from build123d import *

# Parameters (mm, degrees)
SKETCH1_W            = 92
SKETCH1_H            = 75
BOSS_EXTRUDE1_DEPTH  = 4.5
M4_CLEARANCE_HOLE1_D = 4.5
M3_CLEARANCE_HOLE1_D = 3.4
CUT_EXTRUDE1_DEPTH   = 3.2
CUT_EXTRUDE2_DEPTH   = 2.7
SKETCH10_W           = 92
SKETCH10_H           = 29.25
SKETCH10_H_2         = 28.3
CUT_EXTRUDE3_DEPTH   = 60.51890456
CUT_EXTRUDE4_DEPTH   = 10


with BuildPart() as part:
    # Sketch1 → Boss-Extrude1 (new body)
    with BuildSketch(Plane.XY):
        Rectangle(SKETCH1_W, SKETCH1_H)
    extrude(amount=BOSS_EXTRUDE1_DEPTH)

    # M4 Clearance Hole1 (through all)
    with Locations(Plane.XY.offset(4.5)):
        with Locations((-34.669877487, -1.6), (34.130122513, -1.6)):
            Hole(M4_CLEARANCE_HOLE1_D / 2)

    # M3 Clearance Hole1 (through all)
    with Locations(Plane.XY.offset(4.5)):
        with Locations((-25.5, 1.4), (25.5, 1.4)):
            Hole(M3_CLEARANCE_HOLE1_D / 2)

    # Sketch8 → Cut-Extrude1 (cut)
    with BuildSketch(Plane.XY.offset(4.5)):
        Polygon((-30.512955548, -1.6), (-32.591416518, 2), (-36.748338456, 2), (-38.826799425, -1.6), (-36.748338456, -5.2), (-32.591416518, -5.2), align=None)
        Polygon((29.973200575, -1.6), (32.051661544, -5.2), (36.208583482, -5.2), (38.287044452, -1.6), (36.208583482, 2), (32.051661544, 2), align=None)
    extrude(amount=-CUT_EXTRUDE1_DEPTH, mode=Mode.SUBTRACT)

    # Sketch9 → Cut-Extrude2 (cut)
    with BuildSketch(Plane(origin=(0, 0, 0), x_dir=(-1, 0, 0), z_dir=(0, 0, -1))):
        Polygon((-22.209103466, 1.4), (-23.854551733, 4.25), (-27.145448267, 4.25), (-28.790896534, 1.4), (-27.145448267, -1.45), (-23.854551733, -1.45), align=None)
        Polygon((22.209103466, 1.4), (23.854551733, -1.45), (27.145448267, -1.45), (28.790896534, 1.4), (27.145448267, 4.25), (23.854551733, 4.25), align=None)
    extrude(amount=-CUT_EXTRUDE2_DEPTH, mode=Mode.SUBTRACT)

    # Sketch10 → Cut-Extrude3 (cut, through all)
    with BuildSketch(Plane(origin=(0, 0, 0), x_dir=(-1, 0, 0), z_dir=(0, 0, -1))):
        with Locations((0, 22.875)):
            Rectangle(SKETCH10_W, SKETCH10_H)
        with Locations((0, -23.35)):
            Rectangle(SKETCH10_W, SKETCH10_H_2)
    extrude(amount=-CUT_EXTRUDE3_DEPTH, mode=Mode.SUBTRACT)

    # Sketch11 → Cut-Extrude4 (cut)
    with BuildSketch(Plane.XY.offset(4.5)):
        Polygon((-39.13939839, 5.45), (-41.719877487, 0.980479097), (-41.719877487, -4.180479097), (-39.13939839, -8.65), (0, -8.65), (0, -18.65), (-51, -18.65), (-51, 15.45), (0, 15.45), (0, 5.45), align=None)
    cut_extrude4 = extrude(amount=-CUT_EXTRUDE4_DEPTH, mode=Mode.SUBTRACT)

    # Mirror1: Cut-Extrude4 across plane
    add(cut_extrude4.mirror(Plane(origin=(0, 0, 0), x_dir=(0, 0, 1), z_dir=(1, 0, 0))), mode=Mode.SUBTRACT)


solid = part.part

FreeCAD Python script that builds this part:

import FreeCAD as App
import Part
import Sketcher

V = App.Vector
Q = App.Units.Quantity


def add_polygon(sketch, points):
    """Adds a closed chain of lines whose ends are joined by coincident constraints."""
    first, n = sketch.GeometryCount, len(points)
    for a, b in zip(points, points[1:] + points[:1]):
        sketch.addGeometry(Part.LineSegment(App.Vector(*a, 0), App.Vector(*b, 0)), False)
    for i in range(n):
        sketch.addConstraint(Sketcher.Constraint("Coincident", first + i, 2, first + (i + 1) % n, 1))

doc = App.newDocument("Part")
body = doc.addObject("PartDesign::Body", "Body")

# Sketch on XY plane
sketch1 = doc.addObject("Sketcher::SketchObject", "Sketch")
body.addObject(sketch1)
sketch1.AttachmentSupport = (doc.XY_Plane, [""])
sketch1.MapMode = "FlatFace"
add_polygon(sketch1, [(-46, 38), (-46, -38), (46, -38), (46, 38)])  # lines 0-3
sketch1.addConstraint([
    Sketcher.Constraint("Vertical", 0),
    Sketcher.Constraint("Horizontal", 1),
    Sketcher.Constraint("Vertical", 2),
    Sketcher.Constraint("Horizontal", 3),
    Sketcher.Constraint("Symmetric", 0, 2, 2, 2, -1, 1),
    Sketcher.Constraint("DistanceX", 1, 1, 1, 2, 92.0),
    Sketcher.Constraint("DistanceY", 0, 2, 0, 1, 75.0),
])
pad1 = doc.addObject("PartDesign::Pad", "Pad")
body.addObject(pad1)
pad1.Profile = sketch1
pad1.Length = 4.5

# Sketch on XY plane
sketch2 = doc.addObject("Sketcher::SketchObject", "Sketch001")
body.addObject(sketch2)
sketch2.AttachmentSupport = (doc.XY_Plane, [""])
sketch2.MapMode = "FlatFace"
sketch2.AttachmentOffset = App.Placement(V(0, 0, 4.5), App.Rotation())
sketch2.addGeometry([
    Part.Circle(V(-34.7, -1.6, 0), V(0, 0, 1), 2.2),
    Part.Circle(V(34.1, -1.6, 0), V(0, 0, 1), 2.2),
], False)
sketch2.addConstraint([
    Sketcher.Constraint("Equal", 0, 1),
    Sketcher.Constraint("Horizontal", 0, 3, 1, 3),
    Sketcher.Constraint("Diameter", 0, 4.5),
    Sketcher.Constraint("DistanceY", 0, 3, -1, 1, 1.6),
    Sketcher.Constraint("DistanceX", 0, 3, 1, 3, 68.8),
    Sketcher.Constraint("DistanceX", 0, 3, -1, 1, 34.669877),
])
doc.recompute()
hole = doc.addObject("PartDesign::Hole", "Hole")
body.addObject(hole)
hole.Profile = sketch2
hole.ThreadType = "None"
hole.Diameter = 4.5
hole.DepthType = "ThroughAll"

# Sketch on XY plane
sketch3 = doc.addObject("Sketcher::SketchObject", "Sketch002")
body.addObject(sketch3)
sketch3.AttachmentSupport = (doc.XY_Plane, [""])
sketch3.MapMode = "FlatFace"
sketch3.AttachmentOffset = App.Placement(V(0, 0, 4.5), App.Rotation())
sketch3.addGeometry([
    Part.Circle(V(-25.5, 1.4, 0), V(0, 0, 1), 1.7),
    Part.Circle(V(25.5, 1.4, 0), V(0, 0, 1), 1.7),
], False)
sketch3.addConstraint([
    Sketcher.Constraint("Equal", 0, 1),
    Sketcher.Constraint("Symmetric", 0, 3, 1, 3, -2),
    Sketcher.Constraint("Diameter", 0, 3.4),
    Sketcher.Constraint("DistanceX", 0, 3, 1, 3, 51.0),
    Sketcher.Constraint("DistanceY", -1, 1, 0, 3, 1.4),
])
doc.recompute()
hole2 = doc.addObject("PartDesign::Hole", "Hole001")
body.addObject(hole2)
hole2.Profile = sketch3
hole2.ThreadType = "None"
hole2.Diameter = 3.4
hole2.DepthType = "ThroughAll"

# Sketch on XY plane
sketch4 = doc.addObject("Sketcher::SketchObject", "Sketch003")
body.addObject(sketch4)
sketch4.AttachmentSupport = (doc.XY_Plane, [""])
sketch4.MapMode = "FlatFace"
sketch4.AttachmentOffset = App.Placement(V(0, 0, 4.5), App.Rotation())
add_polygon(sketch4, [(-30.5, -1.6), (-32.6, 2), (-36.7, 2), (-38.8, -1.6), (-36.7, -5.2), (-32.6, -5.2)])  # lines 0-5
add_polygon(sketch4, [(30, -1.6), (32.1, -5.2), (36.2, -5.2), (38.3, -1.6), (36.2, 2), (32.1, 2)])  # lines 6-11
sketch4.addConstraint([
    Sketcher.Constraint("Horizontal", 1),
    Sketcher.Constraint("Horizontal", 4),
    Sketcher.Constraint("Horizontal", 7),
    Sketcher.Constraint("Horizontal", 10),
    Sketcher.Constraint("Parallel", 0, 3),
    Sketcher.Constraint("Parallel", 2, 5),
    Sketcher.Constraint("Parallel", 3, 6),
    Sketcher.Constraint("Parallel", 5, 8),
    Sketcher.Constraint("Parallel", 6, 9),
    Sketcher.Constraint("Parallel", 8, 11),
    Sketcher.Constraint("Horizontal", 2, 2, 5, 2),
    Sketcher.Constraint("Horizontal", 4, 2, 6, 2),
    Sketcher.Constraint("Horizontal", 5, 2, 8, 2),
    Sketcher.Constraint("Horizontal", 1, 2, 9, 2),
    Sketcher.Constraint("Horizontal", 8, 2, 11, 2),
    Sketcher.Constraint("Vertical", 1, 2, 3, 2),
    Sketcher.Constraint("Vertical", 0, 2, 4, 2),
    Sketcher.Constraint("Equal", 4, 7),
    Sketcher.Constraint("Angle", 0, Q("120 deg")),
    Sketcher.Constraint("DistanceY", -1, 1, 0, 2, 2.0),
    Sketcher.Constraint("DistanceY", 2, 2, -1, 1, 1.6),
    Sketcher.Constraint("DistanceX", 3, 2, 6, 2, 68.8),
    Sketcher.Constraint("DistanceX", 1, 2, 1, 1, 4.156922),
    Sketcher.Constraint("DistanceX", 2, 2, -1, 1, 38.826799),
])
pocket1 = doc.addObject("PartDesign::Pocket", "Pocket")
body.addObject(pocket1)
pocket1.Profile = sketch4
pocket1.Length = 3.2

# Sketch on XY plane
sketch5 = doc.addObject("Sketcher::SketchObject", "Sketch004")
body.addObject(sketch5)
sketch5.AttachmentSupport = (doc.XY_Plane, [""])
sketch5.MapMode = "FlatFace"
add_polygon(sketch5, [(22.2, 1.4), (23.9, 4.2), (27.1, 4.2), (28.8, 1.4), (27.1, -1.4), (23.9, -1.4)])  # lines 0-5
add_polygon(sketch5, [(-22.2, 1.4), (-23.9, -1.4), (-27.1, -1.4), (-28.8, 1.4), (-27.1, 4.2), (-23.9, 4.2)])  # lines 6-11
sketch5.addConstraint([
    Sketcher.Constraint("Horizontal", 1),
    Sketcher.Constraint("Horizontal", 4),
    Sketcher.Constraint("Horizontal", 7),
    Sketcher.Constraint("Horizontal", 10),
    Sketcher.Constraint("Symmetric", 4, 2, 6, 2, -2),
    Sketcher.Constraint("Symmetric", 2, 2, 8, 2, -2),
    Sketcher.Constraint("Symmetric", 1, 2, 9, 2, -2),
    Sketcher.Constraint("Symmetric", 5, 2, 11, 2, -2),
    Sketcher.Constraint("Parallel", 0, 3),
    Sketcher.Constraint("Parallel", 2, 5),
    Sketcher.Constraint("Parallel", 3, 6),
    Sketcher.Constraint("Parallel", 5, 8),
    Sketcher.Constraint("Parallel", 8, 11),
    Sketcher.Constraint("Horizontal", 2, 2, 5, 2),
    Sketcher.Constraint("Vertical", 1, 2, 3, 2),
    Sketcher.Constraint("Angle", 0, Q("60 deg")),
    Sketcher.Constraint("DistanceX", 6, 2, 3, 2, 51.0),
    Sketcher.Constraint("DistanceY", -1, 1, 2, 2, 1.4),
    Sketcher.Constraint("DistanceY", 3, 2, 1, 2, 5.7),
    Sketcher.Constraint("DistanceX", 1, 1, 1, 2, 3.290897),
])
pocket2 = doc.addObject("PartDesign::Pocket", "Pocket001")
body.addObject(pocket2)
pocket2.Profile = sketch5
pocket2.Length = 2.7
pocket2.Reversed = True

# Sketch on XY plane
sketch6 = doc.addObject("Sketcher::SketchObject", "Sketch005")
body.addObject(sketch6)
sketch6.AttachmentSupport = (doc.XY_Plane, [""])
sketch6.MapMode = "FlatFace"
add_polygon(sketch6, [(46, 38), (46, 8), (-46, 8), (-46, 38)])  # lines 0-3
add_polygon(sketch6, [(46, -9), (46, -38), (-46, -38), (-46, -9)])  # lines 4-7
sketch6.addConstraint([
    Sketcher.Constraint("Vertical", 0),
    Sketcher.Constraint("Horizontal", 1),
    Sketcher.Constraint("Vertical", 2),
    Sketcher.Constraint("Horizontal", 3),
    Sketcher.Constraint("Vertical", 4),
    Sketcher.Constraint("Horizontal", 5),
    Sketcher.Constraint("Vertical", 6),
    Sketcher.Constraint("Horizontal", 7),
    Sketcher.Constraint("Symmetric", 2, 2, 4, 2, -1, 1),
    Sketcher.Constraint("Vertical", 3, 2, 4, 2),
    Sketcher.Constraint("Vertical", 2, 2, 5, 2),
    Sketcher.Constraint("DistanceX", 1, 2, 1, 1, 92.0),
    Sketcher.Constraint("DistanceY", 4, 2, 4, 1, 28.3),
    Sketcher.Constraint("DistanceY", 4, 2, 3, 2, 75.0),
    Sketcher.Constraint("DistanceY", 0, 2, 0, 1, 29.25),
])
pocket3 = doc.addObject("PartDesign::Pocket", "Pocket002")
body.addObject(pocket3)
pocket3.Profile = sketch6
pocket3.Type = "ThroughAll"
pocket3.Reversed = True

# Sketch on XY plane
sketch7 = doc.addObject("Sketcher::SketchObject", "Sketch006")
body.addObject(sketch7)
sketch7.AttachmentSupport = (doc.XY_Plane, [""])
sketch7.MapMode = "FlatFace"
sketch7.AttachmentOffset = App.Placement(V(0, 0, 4.5), App.Rotation())
add_polygon(sketch7, [(-42, 1), (-39, 5), (0, 5), (0, 15), (-51, 15), (-51, -19), (0, -19), (0, -9), (-39, -9), (-42, -4)])  # lines 0-9
sketch7.addConstraint([
    Sketcher.Constraint("Horizontal", 1),
    Sketcher.Constraint("Vertical", 2),
    Sketcher.Constraint("Horizontal", 3),
    Sketcher.Constraint("Vertical", 4),
    Sketcher.Constraint("Horizontal", 5),
    Sketcher.Constraint("Vertical", 6),
    Sketcher.Constraint("Horizontal", 7),
    Sketcher.Constraint("Vertical", 9),
    Sketcher.Constraint("PointOnObject", 1, 2, -2),
    Sketcher.Constraint("PointOnObject", 5, 2, -2),
    Sketcher.Constraint("Vertical", 0, 2, 7, 2),
    Sketcher.Constraint("Equal", 2, 6),
    Sketcher.Constraint("Equal", 0, 8),
    Sketcher.Constraint("DistanceX", 3, 2, 3, 1, 51.0),
    Sketcher.Constraint("DistanceY", 2, 1, 2, 2, 10.0),
    Sketcher.Constraint("Angle", 0, Q("60 deg")),
    Sketcher.Constraint("DistanceY", 4, 2, 4, 1, 34.1),
    Sketcher.Constraint("DistanceY", -1, 1, 0, 2, 5.45),
    Sketcher.Constraint("DistanceX", 1, 1, 1, 2, 39.139398),
    Sketcher.Constraint("DistanceY", 9, 1, 9, 2, 5.160958),
])
pocket4 = doc.addObject("PartDesign::Pocket", "Pocket003")
body.addObject(pocket4)
pocket4.Profile = sketch7
pocket4.Length = 10
doc.recompute()

mirrored = doc.addObject("PartDesign::Mirrored", "Mirrored")
body.addObject(mirrored)
mirrored.Originals = [pocket4]
mirrored.MirrorPlane = (doc.YZ_Plane, [""])
body.Tip = mirrored

doc.recompute()
